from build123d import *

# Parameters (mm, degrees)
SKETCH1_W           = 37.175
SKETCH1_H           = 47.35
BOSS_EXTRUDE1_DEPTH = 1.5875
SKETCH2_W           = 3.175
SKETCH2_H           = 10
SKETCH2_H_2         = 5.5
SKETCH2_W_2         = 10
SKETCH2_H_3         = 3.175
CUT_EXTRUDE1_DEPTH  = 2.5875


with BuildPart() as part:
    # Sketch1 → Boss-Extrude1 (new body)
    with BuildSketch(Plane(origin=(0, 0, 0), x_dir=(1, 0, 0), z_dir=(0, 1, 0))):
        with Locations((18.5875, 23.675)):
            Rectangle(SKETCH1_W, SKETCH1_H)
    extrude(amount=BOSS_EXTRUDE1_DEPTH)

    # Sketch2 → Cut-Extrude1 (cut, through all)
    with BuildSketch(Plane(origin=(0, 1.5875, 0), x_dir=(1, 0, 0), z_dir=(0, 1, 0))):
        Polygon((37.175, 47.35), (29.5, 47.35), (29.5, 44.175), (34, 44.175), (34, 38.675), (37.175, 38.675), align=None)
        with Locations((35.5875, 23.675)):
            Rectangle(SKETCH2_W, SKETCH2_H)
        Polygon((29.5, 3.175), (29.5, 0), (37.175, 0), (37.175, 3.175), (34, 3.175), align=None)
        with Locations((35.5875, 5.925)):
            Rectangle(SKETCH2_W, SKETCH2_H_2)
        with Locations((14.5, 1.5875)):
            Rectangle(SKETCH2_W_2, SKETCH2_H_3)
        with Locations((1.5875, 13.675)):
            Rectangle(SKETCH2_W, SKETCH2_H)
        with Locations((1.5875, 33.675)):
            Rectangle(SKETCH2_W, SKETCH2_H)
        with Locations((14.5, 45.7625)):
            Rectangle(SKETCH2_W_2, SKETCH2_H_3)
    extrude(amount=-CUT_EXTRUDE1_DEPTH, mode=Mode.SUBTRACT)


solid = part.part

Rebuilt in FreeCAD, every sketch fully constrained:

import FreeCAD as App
import Part
import Sketcher


def add_polygon(sketch, points):
    """Adds a closed chain of lines whose ends are joined by coincident constraints."""
    first, n = sketch.GeometryCount, len(points)
    for a, b in zip(points, points[1:] + points[:1]):
        sketch.addGeometry(Part.LineSegment(App.Vector(*a, 0), App.Vector(*b, 0)), False)
    for i in range(n):
        sketch.addConstraint(Sketcher.Constraint("Coincident", first + i, 2, first + (i + 1) % n, 1))

doc = App.newDocument("Part")
body = doc.addObject("PartDesign::Body", "Body")

sketch1 = doc.addObject("Sketcher::SketchObject", "Sketch")
body.addObject(sketch1)
sketch1.AttachmentSupport = (doc.XZ_Plane, [""])
sketch1.MapMode = "FlatFace"
add_polygon(sketch1, [(0, -47), (0, 0), (37, 0), (37, -47)])
sketch1.addConstraint([
    Sketcher.Constraint("Vertical", 0),
    Sketcher.Constraint("Horizontal", 1),
    Sketcher.Constraint("Vertical", 2),
    Sketcher.Constraint("Horizontal", 3),
    Sketcher.Constraint("Coincident", 0, 2, -1, 1),
    Sketcher.Constraint("DistanceY", 0, 1, 0, 2, 47.35),
    Sketcher.Constraint("DistanceX", 1, 1, 1, 2, 37.175),
])
pad1 = doc.addObject("PartDesign::Pad", "Pad")
body.addObject(pad1)
pad1.Profile = sketch1
pad1.Length = 1.5875
pad1.Reversed = True

sketch2 = doc.addObject("Sketcher::SketchObject", "Sketch001")
body.addObject(sketch2)
sketch2.AttachmentSupport = (doc.XZ_Plane, [""])
sketch2.MapMode = "FlatFace"
sketch2.AttachmentOffset = App.Placement(App.Vector(0, 0, -1.5875), App.Rotation())
add_polygon(sketch2, [(37.2, -47.4), (29.5, -47.4), (29.5, -44.2), (34, -44.2), (34, -38.7), (37.2, -38.7)])
add_polygon(sketch2, [(34, -28.7), (34, -18.7), (37.2, -18.7), (37.2, -28.7)])
add_polygon(sketch2, [(29.5, -3.2), (29.5, 0), (37.2, 0), (37.2, -8.7), (34, -8.7), (34, -3.2)])
add_polygon(sketch2, [(9.5, -3.2), (9.5, 0), (19.5, 0), (19.5, -3.2)])
add_polygon(sketch2, [(0, -18.7), (0, -8.7), (3.2, -8.7), (3.2, -18.7)])
add_polygon(sketch2, [(0, -38.7), (0, -28.7), (3.2, -28.7), (3.2, -38.7)])
add_polygon(sketch2, [(9.5, -47.4), (9.5, -44.2), (19.5, -44.2), (19.5, -47.4)])
sketch2.addConstraint([
    Sketcher.Constraint("Horizontal", 0),
    Sketcher.Constraint("Vertical", 1),
    Sketcher.Constraint("Horizontal", 2),
    Sketcher.Constraint("Vertical", 3),
    Sketcher.Constraint("Horizontal", 4),
    Sketcher.Constraint("Vertical", 5),
    Sketcher.Constraint("Vertical", 6),
    Sketcher.Constraint("Horizontal", 7),
    Sketcher.Constraint("Vertical", 8),
    Sketcher.Constraint("Horizontal", 9),
    Sketcher.Constraint("Vertical", 10),
    Sketcher.Constraint("Horizontal", 11),
    Sketcher.Constraint("Vertical", 12),
    Sketcher.Constraint("Horizontal", 13),
    Sketcher.Constraint("Vertical", 14),
    Sketcher.Constraint("Horizontal", 15),
    Sketcher.Constraint("Vertical", 16),
    Sketcher.Constraint("Horizontal", 17),
    Sketcher.Constraint("Vertical", 18),
    Sketcher.Constraint("Horizontal", 19),
    Sketcher.Constraint("Vertical", 20),
    Sketcher.Constraint("Horizontal", 21),
    Sketcher.Constraint("Vertical", 22),
    Sketcher.Constraint("Horizontal", 23),
    Sketcher.Constraint("Vertical", 24),
    Sketcher.Constraint("Horizontal", 25),
    Sketcher.Constraint("Vertical", 26),
    Sketcher.Constraint("Horizontal", 27),
    Sketcher.Constraint("Vertical", 28),
    Sketcher.Constraint("Horizontal", 29),
    Sketcher.Constraint("Vertical", 30),
    Sketcher.Constraint("Horizontal", 31),
    Sketcher.Constraint("PointOnObject", 10, 2, -1),
    Sketcher.Constraint("PointOnObject", 16, 2, -1),
    Sketcher.Constraint("PointOnObject", 20, 2, -2),
    Sketcher.Constraint("PointOnObject", 24, 2, -2),
    Sketcher.Constraint("Horizontal", 15, 2, 18, 2),
    Sketcher.Constraint("Horizontal", 13, 2, 20, 2),
    Sketcher.Constraint("Horizontal", 7, 2, 22, 2),
    Sketcher.Constraint("Horizontal", 9, 2, 24, 2),
    Sketcher.Constraint("Horizontal", 4, 2, 26, 2),
    Sketcher.Constraint("Horizontal", 2, 2, 28, 2),
    Sketcher.Constraint("Horizontal", 5, 2, 30, 2),
    Sketcher.Constraint("Vertical", 3, 2, 6, 2),
    Sketcher.Constraint("Vertical", 5, 2, 7, 2),
    Sketcher.Constraint("Vertical", 1, 2, 10, 2),
    Sketcher.Constraint("Vertical", 8, 2, 11, 2),
    Sketcher.Constraint("Vertical", 9, 2, 13, 2),
    Sketcher.Constraint("Vertical", 22, 2, 25, 2),
    Sketcher.Constraint("Vertical", 19, 2, 28, 2),
    Sketcher.Constraint("Vertical", 18, 2, 29, 2),
    Sketcher.Constraint("Equal", 13, 21),
    Sketcher.Constraint("Equal", 27, 1),
    Sketcher.Constraint("Equal", 31, 6),
    Sketcher.Constraint("Equal", 1, 10),
    Sketcher.Constraint("Equal", 5, 12),
    Sketcher.Constraint("Equal", 8, 20),
    Sketcher.Constraint("Equal", 22, 24),
    Sketcher.Constraint("DistanceX", 17, 1, 17, 2, 10.0),
    Sketcher.Constraint("DistanceX", 2, 1, 2, 2, 4.5),
    Sketcher.Constraint("DistanceY", 3, 1, 3, 2, 5.5),
    Sketcher.Constraint("DistanceX", -1, 1, 2, 2, 34.0),
    Sketcher.Constraint("DistanceX", 16, 2, 10, 2, 20.0),
    Sketcher.Constraint("DistanceX", 0, 2, 0, 1, 7.675),
])
pocket1 = doc.addObject("PartDesign::Pocket", "Pocket")
body.addObject(pocket1)
pocket1.Profile = sketch2
pocket1.Type = "ThroughAll"
pocket1.Reversed = True

doc.recompute()
